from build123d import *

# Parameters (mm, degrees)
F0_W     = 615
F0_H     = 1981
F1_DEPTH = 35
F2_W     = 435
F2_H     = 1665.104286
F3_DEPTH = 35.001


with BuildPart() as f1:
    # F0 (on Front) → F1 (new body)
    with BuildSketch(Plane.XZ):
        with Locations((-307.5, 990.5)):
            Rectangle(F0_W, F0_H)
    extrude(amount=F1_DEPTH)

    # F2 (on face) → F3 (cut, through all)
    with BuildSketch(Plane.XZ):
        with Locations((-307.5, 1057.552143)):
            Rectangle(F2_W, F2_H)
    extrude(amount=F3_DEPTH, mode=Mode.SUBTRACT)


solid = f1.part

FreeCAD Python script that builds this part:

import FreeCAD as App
import Part
import Sketcher
from FreeCAD import Vector
Q = App.Units.Quantity

doc = App.newDocument("Part")
body = doc.addObject("PartDesign::Body", "Body")

# Sketch on XZ plane
sketch1 = body.newObject("Sketcher::SketchObject", "Sketch")
sketch1.AttachmentSupport = (doc.getObject("XZ_Plane"), [""])
sketch1.MapMode = "FlatFace"
sketch1.addGeometry(Part.LineSegment(Vector(-615, 1981, 0), Vector(-615, 0, 0)), False)
sketch1.addGeometry(Part.LineSegment(Vector(-615, 0, 0), Vector(0, 0, 0)), False)
sketch1.addGeometry(Part.LineSegment(Vector(0, 0, 0), Vector(0, 1981, 0)), False)
sketch1.addGeometry(Part.LineSegment(Vector(0, 1981, 0), Vector(-615, 1981, 0)), False)
sketch1.addConstraint(Sketcher.Constraint("Coincident", 0, 2, 1, 1))
sketch1.addConstraint(Sketcher.Constraint("Coincident", 1, 2, 2, 1))
sketch1.addConstraint(Sketcher.Constraint("Coincident", 2, 2, 3, 1))
sketch1.addConstraint(Sketcher.Constraint("Coincident", 3, 2, 0, 1))
sketch1.addConstraint(Sketcher.Constraint("Vertical", 0))
sketch1.addConstraint(Sketcher.Constraint("Horizontal", 1))
sketch1.addConstraint(Sketcher.Constraint("Vertical", 2))
sketch1.addConstraint(Sketcher.Constraint("Horizontal", 3))
sketch1.addConstraint(Sketcher.Constraint("Coincident", 1, 2, -1, 1))
sketch1.addConstraint(Sketcher.Constraint("DistanceX", 1, 1, 1, 2, Q("615 mm")))
sketch1.addConstraint(Sketcher.Constraint("DistanceY", 0, 2, 0, 1, Q("1981 mm")))
pad1 = body.newObject("PartDesign::Pad", "Pad")
pad1.Profile = sketch1
pad1.Length = 35

# Sketch on XZ plane
sketch2 = body.newObject("Sketcher::SketchObject", "Sketch001")
sketch2.AttachmentSupport = (doc.getObject("XZ_Plane"), [""])
sketch2.MapMode = "FlatFace"
sketch2.addGeometry(Part.LineSegment(Vector(-525, 1890, 0), Vector(-525, 225, 0)), False)
sketch2.addGeometry(Part.LineSegment(Vector(-525, 225, 0), Vector(-90, 225, 0)), False)
sketch2.addGeometry(Part.LineSegment(Vector(-90, 225, 0), Vector(-90, 1890, 0)), False)
sketch2.addGeometry(Part.LineSegment(Vector(-90, 1890, 0), Vector(-525, 1890, 0)), False)
sketch2.addConstraint(Sketcher.Constraint("Coincident", 0, 2, 1, 1))
sketch2.addConstraint(Sketcher.Constraint("Coincident", 1, 2, 2, 1))
sketch2.addConstraint(Sketcher.Constraint("Coincident", 2, 2, 3, 1))
sketch2.addConstraint(Sketcher.Constraint("Coincident", 3, 2, 0, 1))
sketch2.addConstraint(Sketcher.Constraint("Vertical", 0))
sketch2.addConstraint(Sketcher.Constraint("Horizontal", 1))
sketch2.addConstraint(Sketcher.Constraint("Vertical", 2))
sketch2.addConstraint(Sketcher.Constraint("Horizontal", 3))
sketch2.addConstraint(Sketcher.Constraint("DistanceX", 1, 1, 1, 2, Q("435 mm")))
sketch2.addConstraint(Sketcher.Constraint("DistanceX", 0, 2, -1, 1, Q("525 mm")))
sketch2.addConstraint(Sketcher.Constraint("DistanceY", -1, 1, 0, 2, Q("225 mm")))
sketch2.addConstraint(Sketcher.Constraint("DistanceY", 0, 2, 0, 1, Q("1665.104286 mm")))
pocket1 = body.newObject("PartDesign::Pocket", "Pocket")
pocket1.Profile = sketch2
pocket1.Type = "ThroughAll"
pocket1.Reversed = True

doc.recompute()
